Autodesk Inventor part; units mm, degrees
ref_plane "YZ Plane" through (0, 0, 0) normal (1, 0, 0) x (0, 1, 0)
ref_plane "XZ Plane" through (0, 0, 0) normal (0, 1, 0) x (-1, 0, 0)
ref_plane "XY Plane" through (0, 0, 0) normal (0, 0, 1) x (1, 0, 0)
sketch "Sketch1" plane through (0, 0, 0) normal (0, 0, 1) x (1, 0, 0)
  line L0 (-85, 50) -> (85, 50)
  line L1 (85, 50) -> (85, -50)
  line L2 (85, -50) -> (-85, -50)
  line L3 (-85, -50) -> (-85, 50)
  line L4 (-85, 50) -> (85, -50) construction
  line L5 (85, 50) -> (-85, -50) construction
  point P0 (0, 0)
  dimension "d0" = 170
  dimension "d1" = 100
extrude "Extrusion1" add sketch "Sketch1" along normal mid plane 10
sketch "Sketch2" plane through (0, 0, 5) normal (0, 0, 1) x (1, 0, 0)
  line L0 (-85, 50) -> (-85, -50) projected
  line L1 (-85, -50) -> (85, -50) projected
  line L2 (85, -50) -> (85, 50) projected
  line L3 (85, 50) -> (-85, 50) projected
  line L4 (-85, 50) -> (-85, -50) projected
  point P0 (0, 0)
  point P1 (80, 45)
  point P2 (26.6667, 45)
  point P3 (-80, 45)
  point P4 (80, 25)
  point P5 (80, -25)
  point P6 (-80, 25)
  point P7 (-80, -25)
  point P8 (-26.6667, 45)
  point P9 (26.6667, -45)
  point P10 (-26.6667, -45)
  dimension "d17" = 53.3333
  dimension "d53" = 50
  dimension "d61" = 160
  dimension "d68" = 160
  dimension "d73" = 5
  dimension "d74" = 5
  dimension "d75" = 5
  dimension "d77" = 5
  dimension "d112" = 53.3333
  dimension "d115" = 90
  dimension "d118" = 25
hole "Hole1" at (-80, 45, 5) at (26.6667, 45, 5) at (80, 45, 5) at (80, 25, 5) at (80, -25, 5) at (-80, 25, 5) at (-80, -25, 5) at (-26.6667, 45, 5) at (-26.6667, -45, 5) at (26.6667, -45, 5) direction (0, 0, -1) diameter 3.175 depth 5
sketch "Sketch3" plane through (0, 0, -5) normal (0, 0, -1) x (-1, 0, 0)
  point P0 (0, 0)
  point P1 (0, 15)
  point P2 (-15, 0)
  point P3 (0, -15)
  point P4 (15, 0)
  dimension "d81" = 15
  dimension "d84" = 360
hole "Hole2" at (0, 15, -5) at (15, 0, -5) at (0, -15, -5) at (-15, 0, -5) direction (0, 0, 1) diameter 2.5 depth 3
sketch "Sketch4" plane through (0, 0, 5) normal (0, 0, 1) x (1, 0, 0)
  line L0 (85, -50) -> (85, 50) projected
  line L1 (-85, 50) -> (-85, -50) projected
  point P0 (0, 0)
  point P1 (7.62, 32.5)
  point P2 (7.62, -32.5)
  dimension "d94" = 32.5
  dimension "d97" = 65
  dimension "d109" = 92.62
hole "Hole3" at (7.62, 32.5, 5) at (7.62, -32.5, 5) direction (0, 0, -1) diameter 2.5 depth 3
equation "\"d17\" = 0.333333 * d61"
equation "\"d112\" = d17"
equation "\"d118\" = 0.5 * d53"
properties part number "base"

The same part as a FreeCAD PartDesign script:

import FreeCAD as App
import Part
import Sketcher
Q = App.Units.Quantity

doc = App.newDocument("Part")
body = doc.addObject("PartDesign::Body", "Body")

sketch1 = body.newObject("Sketcher::SketchObject", "Sketch")
sketch1.AttachmentSupport = (doc.getObject("XY_Plane"), [""])
sketch1.MapMode = "FlatFace"
sketch1.addGeometry(Part.LineSegment(App.Vector(85, 50, 0), App.Vector(-85, 50, 0)), False)
sketch1.addGeometry(Part.LineSegment(App.Vector(-85, 50, 0), App.Vector(-85, -50, 0)), False)
sketch1.addGeometry(Part.LineSegment(App.Vector(-85, -50, 0), App.Vector(85, -50, 0)), False)
sketch1.addGeometry(Part.LineSegment(App.Vector(85, -50, 0), App.Vector(85, 50, 0)), False)
sketch1.addConstraint(Sketcher.Constraint("Coincident", 0, 2, 1, 1))
sketch1.addConstraint(Sketcher.Constraint("Coincident", 1, 2, 2, 1))
sketch1.addConstraint(Sketcher.Constraint("Coincident", 2, 2, 3, 1))
sketch1.addConstraint(Sketcher.Constraint("Coincident", 3, 2, 0, 1))
sketch1.addConstraint(Sketcher.Constraint("Horizontal", 0))
sketch1.addConstraint(Sketcher.Constraint("Vertical", 1))
sketch1.addConstraint(Sketcher.Constraint("Horizontal", 2))
sketch1.addConstraint(Sketcher.Constraint("Vertical", 3))
sketch1.addConstraint(Sketcher.Constraint("Symmetric", 0, 2, 2, 2, -1, 1))
sketch1.addConstraint(Sketcher.Constraint("DistanceX", 0, 2, 0, 1, Q("170 mm")))
sketch1.addConstraint(Sketcher.Constraint("DistanceY", 1, 2, 1, 1, Q("100 mm")))
pad1 = body.newObject("PartDesign::Pad", "Pad")
pad1.Profile = sketch1
pad1.Length = 10
pad1.Midplane = True

sketch2 = body.newObject("Sketcher::SketchObject", "Sketch001")
sketch2.AttachmentSupport = (doc.getObject("XY_Plane"), [""])
sketch2.MapMode = "FlatFace"
sketch2.AttachmentOffset = App.Placement(App.Vector(0, 0, 5), App.Rotation())
sketch2.addGeometry(Part.Circle(App.Vector(-80, 45, 0), App.Vector(0, 0, 1), 1.6), False)
sketch2.addGeometry(Part.Circle(App.Vector(26.7, 45, 0), App.Vector(0, 0, 1), 1.6), False)
sketch2.addGeometry(Part.Circle(App.Vector(80, 45, 0), App.Vector(0, 0, 1), 1.6), False)
sketch2.addGeometry(Part.Circle(App.Vector(80, 25, 0), App.Vector(0, 0, 1), 1.6), False)
sketch2.addGeometry(Part.Circle(App.Vector(80, -25, 0), App.Vector(0, 0, 1), 1.6), False)
sketch2.addGeometry(Part.Circle(App.Vector(-80, 25, 0), App.Vector(0, 0, 1), 1.6), False)
sketch2.addGeometry(Part.Circle(App.Vector(-80, -25, 0), App.Vector(0, 0, 1), 1.6), False)
sketch2.addGeometry(Part.Circle(App.Vector(-26.7, 45, 0), App.Vector(0, 0, 1), 1.6), False)
sketch2.addGeometry(Part.Circle(App.Vector(-26.7, -45, 0), App.Vector(0, 0, 1), 1.6), False)
sketch2.addGeometry(Part.Circle(App.Vector(26.7, -45, 0), App.Vector(0, 0, 1), 1.6), False)
sketch2.addConstraint(Sketcher.Constraint("Equal", 0, 1))
sketch2.addConstraint(Sketcher.Constraint("Equal", 1, 2))
sketch2.addConstraint(Sketcher.Constraint("Equal", 2, 3))
sketch2.addConstraint(Sketcher.Constraint("Equal", 3, 4))
sketch2.addConstraint(Sketcher.Constraint("Equal", 4, 5))
sketch2.addConstraint(Sketcher.Constraint("Equal", 5, 6))
sketch2.addConstraint(Sketcher.Constraint("Equal", 6, 7))
sketch2.addConstraint(Sketcher.Constraint("Equal", 7, 8))
sketch2.addConstraint(Sketcher.Constraint("Equal", 8, 9))
sketch2.addConstraint(Sketcher.Constraint("Symmetric", 4, 3, 5, 3, -1, 1))
sketch2.addConstraint(Sketcher.Constraint("Symmetric", 3, 3, 6, 3, -1, 1))
sketch2.addConstraint(Sketcher.Constraint("Symmetric", 1, 3, 8, 3, -1, 1))
sketch2.addConstraint(Sketcher.Constraint("Symmetric", 7, 3, 9, 3, -1, 1))
sketch2.addConstraint(Sketcher.Constraint("Symmetric", 0, 3, 2, 3, -2))
sketch2.addConstraint(Sketcher.Constraint("Symmetric", 3, 3, 5, 3, -2))
sketch2.addConstraint(Sketcher.Constraint("Symmetric", 1, 3, 7, 3, -2))
sketch2.addConstraint(Sketcher.Constraint("Horizontal", 0, 3, 1, 3))
sketch2.addConstraint(Sketcher.Constraint("Vertical", 2, 3, 3, 3))
sketch2.addConstraint(Sketcher.Constraint("Diameter", 0, Q("3.175 mm")))
sketch2.addConstraint(Sketcher.Constraint("DistanceX", 0, 3, -1, 1, Q("80 mm")))
sketch2.addConstraint(Sketcher.Constraint("DistanceY", -1, 1, 0, 3, Q("45 mm")))
sketch2.addConstraint(Sketcher.Constraint("DistanceY", -1, 1, 3, 3, Q("25 mm")))
sketch2.addConstraint(Sketcher.Constraint("DistanceX", -1, 1, 1, 3, Q("26.6667 mm")))
doc.recompute()
hole = body.newObject("PartDesign::Hole", "Hole")
hole.Profile = sketch2
hole.ThreadType = "None"
hole.Diameter = 3.175
hole.DepthType = "Dimension"
hole.Depth = 5
hole.DrillPoint = "Flat"

sketch3 = body.newObject("Sketcher::SketchObject", "Sketch002")
sketch3.AttachmentSupport = (doc.getObject("XY_Plane"), [""])
sketch3.MapMode = "FlatFace"
sketch3.AttachmentOffset = App.Placement(App.Vector(0, 0, -5), App.Rotation())
sketch3.addGeometry(Part.Circle(App.Vector(0, 15, 0), App.Vector(0, 0, 1), 1.2), False)
sketch3.addGeometry(Part.Circle(App.Vector(15, 0, 0), App.Vector(0, 0, 1), 1.2), False)
sketch3.addGeometry(Part.Circle(App.Vector(0, -15, 0), App.Vector(0, 0, 1), 1.2), False)
sketch3.addGeometry(Part.Circle(App.Vector(-15, 0, 0), App.Vector(0, 0, 1), 1.2), False)
sketch3.addConstraint(Sketcher.Constraint("Equal", 0, 1))
sketch3.addConstraint(Sketcher.Constraint("Equal", 1, 2))
sketch3.addConstraint(Sketcher.Constraint("Equal", 2, 3))
sketch3.addConstraint(Sketcher.Constraint("Symmetric", 0, 3, 2, 3, -1, 1))
sketch3.addConstraint(Sketcher.Constraint("Symmetric", 1, 3, 3, 3, -1, 1))
sketch3.addConstraint(Sketcher.Constraint("PointOnObject", 0, 3, -2))
sketch3.addConstraint(Sketcher.Constraint("PointOnObject", 1, 3, -1))
sketch3.addConstraint(Sketcher.Constraint("Diameter", 0, Q("2.5 mm")))
sketch3.addConstraint(Sketcher.Constraint("DistanceY", -1, 1, 0, 3, Q("15 mm")))
sketch3.addConstraint(Sketcher.Constraint("DistanceX", -1, 1, 1, 3, Q("15 mm")))
doc.recompute()
hole2 = body.newObject("PartDesign::Hole", "Hole001")
hole2.Profile = sketch3
hole2.ThreadType = "None"
hole2.Diameter = 2.5
hole2.DepthType = "Dimension"
hole2.Depth = 3
hole2.DrillPoint = "Flat"
hole2.Reversed = True

sketch4 = body.newObject("Sketcher::SketchObject", "Sketch003")
sketch4.AttachmentSupport = (doc.getObject("XY_Plane"), [""])
sketch4.MapMode = "FlatFace"
sketch4.AttachmentOffset = App.Placement(App.Vector(0, 0, 5), App.Rotation())
sketch4.addGeometry(Part.Circle(App.Vector(7.6, 32.5, 0), App.Vector(0, 0, 1), 1.2), False)
sketch4.addGeometry(Part.Circle(App.Vector(7.6, -32.5, 0), App.Vector(0, 0, 1), 1.2), False)
sketch4.addConstraint(Sketcher.Constraint("Equal", 0, 1))
sketch4.addConstraint(Sketcher.Constraint("Symmetric", 0, 3, 1, 3, -1))
sketch4.addConstraint(Sketcher.Constraint("Diameter", 0, Q("2.5 mm")))
sketch4.addConstraint(Sketcher.Constraint("DistanceY", 1, 3, 0, 3, Q("65 mm")))
sketch4.addConstraint(Sketcher.Constraint("DistanceX", -1, 1, 0, 3, Q("7.62 mm")))
doc.recompute()
hole3 = body.newObject("PartDesign::Hole", "Hole002")
hole3.Profile = sketch4
hole3.ThreadType = "None"
hole3.Diameter = 2.5
hole3.DepthType = "Dimension"
hole3.Depth = 3
hole3.DrillPoint = "Flat"

doc.recompute()
